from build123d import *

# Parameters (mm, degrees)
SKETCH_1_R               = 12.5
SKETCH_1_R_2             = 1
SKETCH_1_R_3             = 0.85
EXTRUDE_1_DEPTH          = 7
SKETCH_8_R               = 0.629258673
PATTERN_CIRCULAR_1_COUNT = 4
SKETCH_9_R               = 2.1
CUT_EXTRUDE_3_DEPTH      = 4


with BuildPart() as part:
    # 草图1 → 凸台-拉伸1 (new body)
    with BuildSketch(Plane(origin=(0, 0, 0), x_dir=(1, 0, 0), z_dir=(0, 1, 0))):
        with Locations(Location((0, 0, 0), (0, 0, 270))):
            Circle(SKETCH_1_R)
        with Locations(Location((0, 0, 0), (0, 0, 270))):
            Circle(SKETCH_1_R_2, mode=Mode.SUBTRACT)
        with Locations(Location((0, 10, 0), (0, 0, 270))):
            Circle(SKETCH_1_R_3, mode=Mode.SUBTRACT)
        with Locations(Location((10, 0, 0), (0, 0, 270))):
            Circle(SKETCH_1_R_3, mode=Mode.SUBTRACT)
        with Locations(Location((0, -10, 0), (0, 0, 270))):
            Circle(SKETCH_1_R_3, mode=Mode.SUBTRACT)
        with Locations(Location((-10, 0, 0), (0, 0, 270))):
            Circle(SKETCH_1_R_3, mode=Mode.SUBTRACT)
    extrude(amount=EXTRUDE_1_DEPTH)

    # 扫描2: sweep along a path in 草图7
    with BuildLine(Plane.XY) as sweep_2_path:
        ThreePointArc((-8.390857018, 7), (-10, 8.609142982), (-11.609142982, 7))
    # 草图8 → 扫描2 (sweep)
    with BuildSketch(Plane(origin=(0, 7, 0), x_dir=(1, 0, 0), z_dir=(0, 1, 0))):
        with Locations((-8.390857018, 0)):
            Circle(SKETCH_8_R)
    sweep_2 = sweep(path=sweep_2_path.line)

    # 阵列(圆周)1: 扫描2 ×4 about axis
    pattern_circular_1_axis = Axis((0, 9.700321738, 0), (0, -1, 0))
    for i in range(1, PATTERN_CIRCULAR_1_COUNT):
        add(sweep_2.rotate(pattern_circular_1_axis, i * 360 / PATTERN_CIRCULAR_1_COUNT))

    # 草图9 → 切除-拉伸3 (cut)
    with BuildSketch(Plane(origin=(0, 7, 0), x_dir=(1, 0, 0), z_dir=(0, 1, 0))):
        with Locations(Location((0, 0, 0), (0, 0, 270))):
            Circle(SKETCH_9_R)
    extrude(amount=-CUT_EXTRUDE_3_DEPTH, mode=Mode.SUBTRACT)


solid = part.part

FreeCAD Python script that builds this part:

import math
import FreeCAD as App
import Part
import Sketcher
Q = App.Units.Quantity

doc = App.newDocument("Part")
params = doc.addObject("Spreadsheet::Sheet", "Params")
for row, (alias, value) in enumerate([
    ("sketch1_diameter", "25 mm"),
    ("sketch1_diameter2", "2 mm"),
    ("sketch1_diameter3", "1.7 mm"),
    ("pad1_length", "7 mm"),
    ("sketch4_diameter", "4.2 mm"),
    ("pocket1_length", "4 mm"),
], start=1):
    params.set(f"A{row}", alias)
    params.set(f"B{row}", "=" + value)
    params.setAlias(f"B{row}", alias)

body = doc.addObject("PartDesign::Body", "Body")

sketch1 = doc.addObject("Sketcher::SketchObject", "Sketch")
body.addObject(sketch1)
sketch1.AttachmentSupport = (doc.XZ_Plane, [""])
sketch1.MapMode = "FlatFace"
sketch1.addGeometry(Part.Circle(App.Vector(0, 0, 0), App.Vector(0, 0, 1), 12.5), False)
sketch1.addGeometry(Part.Circle(App.Vector(0, -10, 0), App.Vector(0, 0, 1), 0.85), False)
sketch1.addGeometry(Part.Circle(App.Vector(-10, 0, 0), App.Vector(0, 0, 1), 0.85), False)
sketch1.addGeometry(Part.Circle(App.Vector(10, 0, 0), App.Vector(0, 0, 1), 0.85), False)
sketch1.addGeometry(Part.Circle(App.Vector(0, 0, 0), App.Vector(0, 0, 1), 1), False)
sketch1.addGeometry(Part.Circle(App.Vector(0, 10, 0), App.Vector(0, 0, 1), 0.85), False)
sketch1.addConstraint(Sketcher.Constraint("Coincident", 0, 3, -1, 1))
sketch1.addConstraint(Sketcher.Constraint("Coincident", 4, 3, -1, 1))
sketch1.addConstraint(Sketcher.Constraint("Equal", 1, 2))
sketch1.addConstraint(Sketcher.Constraint("Equal", 2, 3))
sketch1.addConstraint(Sketcher.Constraint("Equal", 3, 5))
sketch1.addConstraint(Sketcher.Constraint("Symmetric", 2, 3, 3, 3, -1, 1))
sketch1.addConstraint(Sketcher.Constraint("Symmetric", 1, 3, 5, 3, -1, 1))
sketch1.addConstraint(Sketcher.Constraint("PointOnObject", 1, 3, -2))
sketch1.addConstraint(Sketcher.Constraint("PointOnObject", 2, 3, -1))
sketch1.addConstraint(Sketcher.Constraint("Diameter", 0, Q("25 mm")))
sketch1.addConstraint(Sketcher.Constraint("Diameter", 4, Q("2 mm")))
sketch1.addConstraint(Sketcher.Constraint("Diameter", 1, Q("1.7 mm")))
sketch1.addConstraint(Sketcher.Constraint("DistanceY", 1, 3, -1, 1, Q("10 mm")))
sketch1.addConstraint(Sketcher.Constraint("DistanceX", 2, 3, -1, 1, Q("10 mm")))
sketch1.setExpression("Constraints[9]", "Params.sketch1_diameter")
sketch1.setExpression("Constraints[10]", "Params.sketch1_diameter2")
sketch1.setExpression("Constraints[11]", "Params.sketch1_diameter3")
pad1 = doc.addObject("PartDesign::Pad", "Pad")
body.addObject(pad1)
pad1.Profile = sketch1
pad1.setExpression("Length", "Params.pad1_length")
pad1.Reversed = True

sketch2 = doc.addObject("Sketcher::SketchObject", "Sketch001")
body.addObject(sketch2)
sketch2.AttachmentSupport = (doc.XZ_Plane, [""])
sketch2.MapMode = "FlatFace"
sketch2.AttachmentOffset = App.Placement(App.Vector(0, 0, -7), App.Rotation())
sketch2.addGeometry(Part.Circle(App.Vector(-8.390857, 0, 0), App.Vector(0, 0, 1), 0.629259), False)
sketch2.addConstraint(Sketcher.Constraint("PointOnObject", 0, 3, -1))
sketch2.addConstraint(Sketcher.Constraint("Diameter", 0, Q("1.258517 mm")))
sketch2.addConstraint(Sketcher.Constraint("DistanceX", 0, 3, -1, 1, Q("8.390857 mm")))

sketch3 = doc.addObject("Sketcher::SketchObject", "Sketch002")
body.addObject(sketch3)
sketch3.AttachmentSupport = (doc.XY_Plane, [""])
sketch3.MapMode = "FlatFace"
sketch3.addGeometry(Part.ArcOfCircle(Part.Circle(App.Vector(-10, 7, 0), App.Vector(0, 0, 1), 1.609143), math.radians(0), math.radians(180)), False)
sketch3.addConstraint(Sketcher.Constraint("DistanceX", 0, 3, -1, 1, Q("10 mm")))
sketch3.addConstraint(Sketcher.Constraint("DistanceY", -1, 1, 0, 3, Q("7 mm")))
sketch3.addConstraint(Sketcher.Constraint("DistanceY", -1, 1, 0, 1, Q("7 mm")))
sketch3.addConstraint(Sketcher.Constraint("DistanceY", -1, 1, 0, 2, Q("7 mm")))
sketch3.addConstraint(Sketcher.Constraint("Radius", 0, Q("1.609143 mm")))
doc.recompute()

additivepipe = doc.addObject("PartDesign::AdditivePipe", "AdditivePipe")
body.addObject(additivepipe)
additivepipe.Profile = sketch2
additivepipe.Spine = (sketch3, ["Edge1"])
doc.recompute()

polarpattern = doc.addObject("PartDesign::PolarPattern", "PolarPattern")
body.addObject(polarpattern)
polarpattern.Originals = [additivepipe]
polarpattern.Axis = (doc.Y_Axis, [""])
polarpattern.Angle = 360
polarpattern.Occurrences = 4
body.Tip = polarpattern

sketch4 = doc.addObject("Sketcher::SketchObject", "Sketch003")
body.addObject(sketch4)
sketch4.AttachmentSupport = (doc.XZ_Plane, [""])
sketch4.MapMode = "FlatFace"
sketch4.AttachmentOffset = App.Placement(App.Vector(0, 0, -7), App.Rotation())
sketch4.addGeometry(Part.Circle(App.Vector(0, 0, 0), App.Vector(0, 0, 1), 2.1), False)
sketch4.addConstraint(Sketcher.Constraint("Coincident", 0, 3, -1, 1))
sketch4.addConstraint(Sketcher.Constraint("Diameter", 0, Q("4.2 mm")))
sketch4.setExpression("Constraints[1]", "Params.sketch4_diameter")
pocket1 = doc.addObject("PartDesign::Pocket", "Pocket")
body.addObject(pocket1)
pocket1.Profile = sketch4
pocket1.setExpression("Length", "Params.pocket1_length")
pocket1.Reversed = True

doc.recompute()
